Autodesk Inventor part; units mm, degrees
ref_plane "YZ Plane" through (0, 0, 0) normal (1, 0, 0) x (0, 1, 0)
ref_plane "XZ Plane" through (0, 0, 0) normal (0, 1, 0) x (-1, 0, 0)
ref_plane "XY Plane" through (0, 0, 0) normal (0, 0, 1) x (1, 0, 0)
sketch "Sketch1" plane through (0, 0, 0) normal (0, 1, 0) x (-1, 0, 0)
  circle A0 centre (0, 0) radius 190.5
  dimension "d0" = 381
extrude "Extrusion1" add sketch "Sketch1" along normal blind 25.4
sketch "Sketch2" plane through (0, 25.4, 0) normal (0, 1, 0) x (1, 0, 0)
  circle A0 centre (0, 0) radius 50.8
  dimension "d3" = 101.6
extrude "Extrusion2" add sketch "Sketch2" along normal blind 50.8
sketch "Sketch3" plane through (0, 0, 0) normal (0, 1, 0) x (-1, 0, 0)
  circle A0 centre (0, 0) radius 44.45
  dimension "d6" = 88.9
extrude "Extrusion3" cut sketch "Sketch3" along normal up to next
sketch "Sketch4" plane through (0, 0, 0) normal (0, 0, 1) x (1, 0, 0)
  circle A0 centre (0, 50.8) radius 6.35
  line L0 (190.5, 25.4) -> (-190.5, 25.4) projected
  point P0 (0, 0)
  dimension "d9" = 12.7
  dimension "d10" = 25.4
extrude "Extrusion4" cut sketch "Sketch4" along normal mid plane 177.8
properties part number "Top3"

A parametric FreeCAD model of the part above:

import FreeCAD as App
import Part
import Sketcher

V = App.Vector
Q = App.Units.Quantity

doc = App.newDocument("Part")
params = doc.addObject("Spreadsheet::Sheet", "Params")
for row, (alias, value) in enumerate([
    ("sketch1_diameter", "15 in"),
    ("pad1_length", "1 in"),
    ("sketch2_diameter", "4 in"),
    ("pad2_length", "2 in"),
    ("sketch3_diameter", "3.5 in"),
    ("sketch4_diameter", "0.5 in"),
    ("pocket2_length", "7 in"),
], start=1):
    params.set(f"A{row}", alias)
    params.set(f"B{row}", "=" + value)
    params.setAlias(f"B{row}", alias)

body = doc.addObject("PartDesign::Body", "Body")

# Sketch on XZ plane
sketch1 = body.newObject("Sketcher::SketchObject", "Sketch")
sketch1.AttachmentSupport = (doc.getObject("XZ_Plane"), [""])
sketch1.MapMode = "FlatFace"
sketch1.addGeometry(Part.Circle(V(0, 0, 0), V(0, 0, 1), 190), False)
sketch1.addConstraint([
    Sketcher.Constraint("Coincident", 0, 3, -1, 1),
    Sketcher.Constraint("Diameter", 0, Q("15 in")),
])
sketch1.setExpression("Constraints[1]", "Params.sketch1_diameter")
pad1 = body.newObject("PartDesign::Pad", "Pad")
pad1.Profile = sketch1
pad1.setExpression("Length", "Params.pad1_length")
pad1.Reversed = True

# Sketch on XZ plane
sketch2 = body.newObject("Sketcher::SketchObject", "Sketch001")
sketch2.AttachmentSupport = (doc.getObject("XZ_Plane"), [""])
sketch2.MapMode = "FlatFace"
sketch2.AttachmentOffset = App.Placement(V(0, 0, -1 * 25.4), App.Rotation())
sketch2.addGeometry(Part.Circle(V(0, 0, 0), V(0, 0, 1), 51), False)
sketch2.addConstraint([
    Sketcher.Constraint("Coincident", 0, 3, -1, 1),
    Sketcher.Constraint("Diameter", 0, Q("4 in")),
])
sketch2.setExpression("Constraints[1]", "Params.sketch2_diameter")
pad2 = body.newObject("PartDesign::Pad", "Pad001")
pad2.Profile = sketch2
pad2.setExpression("Length", "Params.pad2_length")
pad2.Reversed = True

# Sketch on XZ plane
sketch3 = body.newObject("Sketcher::SketchObject", "Sketch002")
sketch3.AttachmentSupport = (doc.getObject("XZ_Plane"), [""])
sketch3.MapMode = "FlatFace"
sketch3.addGeometry(Part.Circle(V(0, 0, 0), V(0, 0, 1), 44), False)
sketch3.addConstraint([
    Sketcher.Constraint("Coincident", 0, 3, -1, 1),
    Sketcher.Constraint("Diameter", 0, Q("3.5 in")),
])
sketch3.setExpression("Constraints[1]", "Params.sketch3_diameter")
pocket1 = body.newObject("PartDesign::Pocket", "Pocket")
pocket1.Profile = sketch3
pocket1.Type = "UpToFirst"

# Sketch on XY plane
sketch4 = body.newObject("Sketcher::SketchObject", "Sketch003")
sketch4.AttachmentSupport = (doc.getObject("XY_Plane"), [""])
sketch4.MapMode = "FlatFace"
sketch4.addGeometry(Part.Circle(V(0, 51, 0), V(0, 0, 1), 6), False)
sketch4.addConstraint([
    Sketcher.Constraint("PointOnObject", 0, 3, -2),
    Sketcher.Constraint("Diameter", 0, Q("0.5 in")),
    Sketcher.Constraint("DistanceY", -1, 1, 0, 3, Q("2 in")),
])
sketch4.setExpression("Constraints[1]", "Params.sketch4_diameter")
pocket2 = body.newObject("PartDesign::Pocket", "Pocket001")
pocket2.Profile = sketch4
pocket2.setExpression("Length", "Params.pocket2_length")
pocket2.Midplane = True

doc.recompute()
